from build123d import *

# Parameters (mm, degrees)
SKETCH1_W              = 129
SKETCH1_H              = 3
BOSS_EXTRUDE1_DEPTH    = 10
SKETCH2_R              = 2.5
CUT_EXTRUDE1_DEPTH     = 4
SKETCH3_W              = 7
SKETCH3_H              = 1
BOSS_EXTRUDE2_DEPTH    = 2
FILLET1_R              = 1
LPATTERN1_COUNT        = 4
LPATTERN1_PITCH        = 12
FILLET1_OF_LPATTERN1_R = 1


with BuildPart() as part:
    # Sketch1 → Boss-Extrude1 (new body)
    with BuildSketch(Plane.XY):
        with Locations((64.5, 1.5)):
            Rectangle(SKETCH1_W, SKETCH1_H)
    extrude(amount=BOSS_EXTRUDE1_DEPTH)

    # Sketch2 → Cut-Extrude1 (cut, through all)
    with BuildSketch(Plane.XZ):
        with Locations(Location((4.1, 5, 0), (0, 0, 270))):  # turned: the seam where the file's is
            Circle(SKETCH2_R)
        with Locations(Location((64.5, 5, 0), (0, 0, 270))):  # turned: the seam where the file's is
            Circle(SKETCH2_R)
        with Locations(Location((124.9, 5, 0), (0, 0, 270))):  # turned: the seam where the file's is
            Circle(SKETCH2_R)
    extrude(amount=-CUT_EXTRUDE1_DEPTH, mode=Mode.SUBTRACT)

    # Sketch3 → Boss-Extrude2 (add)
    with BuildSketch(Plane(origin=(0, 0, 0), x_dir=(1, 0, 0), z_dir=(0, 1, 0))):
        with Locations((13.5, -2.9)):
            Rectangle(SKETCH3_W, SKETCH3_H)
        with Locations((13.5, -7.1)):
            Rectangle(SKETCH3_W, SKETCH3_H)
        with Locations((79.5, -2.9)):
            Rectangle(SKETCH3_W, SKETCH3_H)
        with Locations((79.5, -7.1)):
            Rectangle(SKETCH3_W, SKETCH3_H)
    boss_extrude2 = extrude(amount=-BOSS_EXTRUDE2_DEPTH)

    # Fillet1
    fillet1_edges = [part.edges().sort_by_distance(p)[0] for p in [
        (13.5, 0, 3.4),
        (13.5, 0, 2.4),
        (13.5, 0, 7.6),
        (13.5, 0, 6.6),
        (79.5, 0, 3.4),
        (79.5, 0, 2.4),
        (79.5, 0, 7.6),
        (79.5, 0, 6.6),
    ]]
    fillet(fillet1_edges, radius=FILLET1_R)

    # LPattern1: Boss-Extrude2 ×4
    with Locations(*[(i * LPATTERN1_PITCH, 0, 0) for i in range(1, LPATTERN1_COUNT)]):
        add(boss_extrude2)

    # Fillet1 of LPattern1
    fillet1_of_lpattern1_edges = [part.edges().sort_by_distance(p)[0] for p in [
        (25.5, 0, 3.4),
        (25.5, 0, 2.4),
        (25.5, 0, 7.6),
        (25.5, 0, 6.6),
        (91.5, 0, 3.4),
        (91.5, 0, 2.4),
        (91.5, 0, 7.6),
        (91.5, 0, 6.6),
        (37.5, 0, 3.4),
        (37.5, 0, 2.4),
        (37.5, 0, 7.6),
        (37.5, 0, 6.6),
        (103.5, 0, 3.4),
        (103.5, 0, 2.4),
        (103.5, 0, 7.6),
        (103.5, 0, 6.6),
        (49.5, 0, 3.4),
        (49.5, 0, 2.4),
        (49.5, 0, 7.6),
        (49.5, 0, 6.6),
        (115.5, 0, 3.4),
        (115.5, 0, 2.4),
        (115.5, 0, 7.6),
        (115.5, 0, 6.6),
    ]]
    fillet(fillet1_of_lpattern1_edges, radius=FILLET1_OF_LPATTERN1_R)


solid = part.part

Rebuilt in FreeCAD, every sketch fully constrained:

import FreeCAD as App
import Part
import Sketcher
from FreeCAD import Vector
Q = App.Units.Quantity


def edges_at(feature, points):
    """Names of the edges that pass closest to the given points."""
    edges = feature.Shape.Edges
    near = lambda p: min(range(len(edges)), key=lambda i: edges[i].distToShape(Part.Vertex(*p))[0])
    return sorted({f"Edge{near(p) + 1}" for p in points})

doc = App.newDocument("Part")
body = doc.addObject("PartDesign::Body", "Body")

# Sketch on XY plane
sketch1 = doc.addObject("Sketcher::SketchObject", "Sketch")
body.addObject(sketch1)
sketch1.AttachmentSupport = (doc.XY_Plane, [""])
sketch1.MapMode = "FlatFace"
sketch1.addGeometry([
    Part.LineSegment(Vector(0, 3, 0), Vector(0, 0, 0)),
    Part.LineSegment(Vector(0, 0, 0), Vector(129, 0, 0)),
    Part.LineSegment(Vector(129, 0, 0), Vector(129, 3, 0)),
    Part.LineSegment(Vector(129, 3, 0), Vector(0, 3, 0)),
], False)
sketch1.addConstraint([
    Sketcher.Constraint("Coincident", 0, 2, 1, 1),
    Sketcher.Constraint("Coincident", 1, 2, 2, 1),
    Sketcher.Constraint("Coincident", 2, 2, 3, 1),
    Sketcher.Constraint("Coincident", 3, 2, 0, 1),
    Sketcher.Constraint("Vertical", 0),
    Sketcher.Constraint("Horizontal", 1),
    Sketcher.Constraint("Vertical", 2),
    Sketcher.Constraint("Horizontal", 3),
    Sketcher.Constraint("Coincident", 0, 2, -1, 1),
    Sketcher.Constraint("DistanceX", 1, 1, 1, 2, Q("129 mm")),
    Sketcher.Constraint("DistanceY", 0, 2, 0, 1, Q("3 mm")),
])
pad1 = doc.addObject("PartDesign::Pad", "Pad")
body.addObject(pad1)
pad1.Profile = sketch1
pad1.Length = 10

# Sketch on XZ plane
sketch2 = doc.addObject("Sketcher::SketchObject", "Sketch001")
body.addObject(sketch2)
sketch2.AttachmentSupport = (doc.XZ_Plane, [""])
sketch2.MapMode = "FlatFace"
sketch2.addGeometry([
    Part.Circle(Vector(4.1, 5, 0), Vector(0, 0, 1), 2.5),
    Part.Circle(Vector(64.5, 5, 0), Vector(0, 0, 1), 2.5),
    Part.Circle(Vector(124.9, 5, 0), Vector(0, 0, 1), 2.5),
], False)
sketch2.addConstraint([
    Sketcher.Constraint("Equal", 0, 1),
    Sketcher.Constraint("Equal", 1, 2),
    Sketcher.Constraint("Horizontal", 0, 3, 1, 3),
    Sketcher.Constraint("Horizontal", 1, 3, 2, 3),
    Sketcher.Constraint("Diameter", 0, Q("5 mm")),
    Sketcher.Constraint("DistanceY", -1, 1, 0, 3, Q("5 mm")),
    Sketcher.Constraint("DistanceX", -1, 1, 0, 3, Q("4.1 mm")),
    Sketcher.Constraint("DistanceX", -1, 1, 1, 3, Q("64.5 mm")),
    Sketcher.Constraint("DistanceX", -1, 1, 2, 3, Q("124.9 mm")),
])
pocket1 = doc.addObject("PartDesign::Pocket", "Pocket")
body.addObject(pocket1)
pocket1.Profile = sketch2
pocket1.Type = "ThroughAll"

# Sketch on XZ plane
sketch3 = doc.addObject("Sketcher::SketchObject", "Sketch002")
body.addObject(sketch3)
sketch3.AttachmentSupport = (doc.XZ_Plane, [""])
sketch3.MapMode = "FlatFace"
sketch3.addGeometry([
    Part.LineSegment(Vector(10, 2.4, 0), Vector(10, 3.4, 0)),  # 0
    Part.LineSegment(Vector(10, 3.4, 0), Vector(17, 3.4, 0)),  # 1
    Part.LineSegment(Vector(17, 3.4, 0), Vector(17, 2.4, 0)),  # 2
    Part.LineSegment(Vector(17, 2.4, 0), Vector(10, 2.4, 0)),  # 3
    Part.LineSegment(Vector(10, 6.6, 0), Vector(10, 7.6, 0)),  # 4
    Part.LineSegment(Vector(10, 7.6, 0), Vector(17, 7.6, 0)),  # 5
    Part.LineSegment(Vector(17, 7.6, 0), Vector(17, 6.6, 0)),  # 6
    Part.LineSegment(Vector(17, 6.6, 0), Vector(10, 6.6, 0)),  # 7
    Part.LineSegment(Vector(76, 2.4, 0), Vector(76, 3.4, 0)),  # 8
    Part.LineSegment(Vector(76, 3.4, 0), Vector(83, 3.4, 0)),  # 9
    Part.LineSegment(Vector(83, 3.4, 0), Vector(83, 2.4, 0)),  # 10
    Part.LineSegment(Vector(83, 2.4, 0), Vector(76, 2.4, 0)),  # 11
    Part.LineSegment(Vector(76, 6.6, 0), Vector(76, 7.6, 0)),  # 12
    Part.LineSegment(Vector(76, 7.6, 0), Vector(83, 7.6, 0)),  # 13
    Part.LineSegment(Vector(83, 7.6, 0), Vector(83, 6.6, 0)),  # 14
    Part.LineSegment(Vector(83, 6.6, 0), Vector(76, 6.6, 0)),  # 15
], False)
sketch3.addConstraint([
    Sketcher.Constraint("Coincident", 0, 2, 1, 1),
    Sketcher.Constraint("Coincident", 1, 2, 2, 1),
    Sketcher.Constraint("Coincident", 2, 2, 3, 1),
    Sketcher.Constraint("Coincident", 3, 2, 0, 1),
    Sketcher.Constraint("Coincident", 4, 2, 5, 1),
    Sketcher.Constraint("Coincident", 5, 2, 6, 1),
    Sketcher.Constraint("Coincident", 6, 2, 7, 1),
    Sketcher.Constraint("Coincident", 7, 2, 4, 1),
    Sketcher.Constraint("Coincident", 8, 2, 9, 1),
    Sketcher.Constraint("Coincident", 9, 2, 10, 1),
    Sketcher.Constraint("Coincident", 10, 2, 11, 1),
    Sketcher.Constraint("Coincident", 11, 2, 8, 1),
    Sketcher.Constraint("Coincident", 12, 2, 13, 1),
    Sketcher.Constraint("Coincident", 13, 2, 14, 1),
    Sketcher.Constraint("Coincident", 14, 2, 15, 1),
    Sketcher.Constraint("Coincident", 15, 2, 12, 1),
    Sketcher.Constraint("Vertical", 0),
    Sketcher.Constraint("Horizontal", 1),
    Sketcher.Constraint("Vertical", 2),
    Sketcher.Constraint("Horizontal", 3),
    Sketcher.Constraint("Vertical", 4),
    Sketcher.Constraint("Horizontal", 5),
    Sketcher.Constraint("Vertical", 6),
    Sketcher.Constraint("Horizontal", 7),
    Sketcher.Constraint("Vertical", 8),
    Sketcher.Constraint("Horizontal", 9),
    Sketcher.Constraint("Vertical", 10),
    Sketcher.Constraint("Horizontal", 11),
    Sketcher.Constraint("Vertical", 12),
    Sketcher.Constraint("Horizontal", 13),
    Sketcher.Constraint("Vertical", 14),
    Sketcher.Constraint("Horizontal", 15),
    Sketcher.Constraint("Horizontal", 1, 2, 8, 2),
    Sketcher.Constraint("Horizontal", 3, 2, 10, 2),
    Sketcher.Constraint("Horizontal", 5, 2, 12, 2),
    Sketcher.Constraint("Horizontal", 7, 2, 14, 2),
    Sketcher.Constraint("Vertical", 3, 2, 4, 2),
    Sketcher.Constraint("Vertical", 2, 2, 5, 2),
    Sketcher.Constraint("Vertical", 11, 2, 12, 2),
    Sketcher.Constraint("Vertical", 10, 2, 13, 2),
    Sketcher.Constraint("Equal", 7, 9),
    Sketcher.Constraint("Equal", 2, 4),
    Sketcher.Constraint("DistanceX", 1, 1, 1, 2, Q("7 mm")),
    Sketcher.Constraint("DistanceY", 0, 1, 0, 2, Q("1 mm")),
    Sketcher.Constraint("DistanceX", -1, 1, 0, 2, Q("10 mm")),
    Sketcher.Constraint("DistanceX", -1, 1, 8, 2, Q("76 mm")),
    Sketcher.Constraint("DistanceY", -1, 1, 0, 2, Q("3.4 mm")),
    Sketcher.Constraint("DistanceY", -1, 1, 4, 2, Q("7.6 mm")),
])
pad2 = doc.addObject("PartDesign::Pad", "Pad001")
body.addObject(pad2)
pad2.Profile = sketch3
pad2.Length = 2
doc.recompute()

fillet = doc.addObject("PartDesign::Fillet", "Fillet")
body.addObject(fillet)
fillet.Base = (pad2, edges_at(pad2, [
    (13.5, 0, 3.4),
    (13.5, 0, 2.4),
    (13.5, 0, 7.6),
    (13.5, 0, 6.6),
    (79.5, 0, 3.4),
    (79.5, 0, 2.4),
    (79.5, 0, 7.6),
    (79.5, 0, 6.6),
]))
fillet.Radius = 1
doc.recompute()

linearpattern = doc.addObject("PartDesign::LinearPattern", "LinearPattern")
body.addObject(linearpattern)
linearpattern.Originals = [pad2]
linearpattern.Direction = (doc.X_Axis, [""])
linearpattern.Mode = "offset"
linearpattern.Offset = 12
linearpattern.Occurrences = 4
body.Tip = linearpattern
doc.recompute()

fillet2 = doc.addObject("PartDesign::Fillet", "Fillet001")
body.addObject(fillet2)
fillet2.Base = (linearpattern, edges_at(linearpattern, [
    (25.5, 0, 3.4),
    (25.5, 0, 2.4),
    (25.5, 0, 7.6),
    (25.5, 0, 6.6),
    (91.5, 0, 3.4),
    (91.5, 0, 2.4),
    (91.5, 0, 7.6),
    (91.5, 0, 6.6),
    (37.5, 0, 3.4),
    (37.5, 0, 2.4),
    (37.5, 0, 7.6),
    (37.5, 0, 6.6),
    (103.5, 0, 3.4),
    (103.5, 0, 2.4),
    (103.5, 0, 7.6),
    (103.5, 0, 6.6),
    (49.5, 0, 3.4),
    (49.5, 0, 2.4),
    (49.5, 0, 7.6),
    (49.5, 0, 6.6),
    (115.5, 0, 3.4),
    (115.5, 0, 2.4),
    (115.5, 0, 7.6),
    (115.5, 0, 6.6),
]))
fillet2.Radius = 1

doc.recompute()
